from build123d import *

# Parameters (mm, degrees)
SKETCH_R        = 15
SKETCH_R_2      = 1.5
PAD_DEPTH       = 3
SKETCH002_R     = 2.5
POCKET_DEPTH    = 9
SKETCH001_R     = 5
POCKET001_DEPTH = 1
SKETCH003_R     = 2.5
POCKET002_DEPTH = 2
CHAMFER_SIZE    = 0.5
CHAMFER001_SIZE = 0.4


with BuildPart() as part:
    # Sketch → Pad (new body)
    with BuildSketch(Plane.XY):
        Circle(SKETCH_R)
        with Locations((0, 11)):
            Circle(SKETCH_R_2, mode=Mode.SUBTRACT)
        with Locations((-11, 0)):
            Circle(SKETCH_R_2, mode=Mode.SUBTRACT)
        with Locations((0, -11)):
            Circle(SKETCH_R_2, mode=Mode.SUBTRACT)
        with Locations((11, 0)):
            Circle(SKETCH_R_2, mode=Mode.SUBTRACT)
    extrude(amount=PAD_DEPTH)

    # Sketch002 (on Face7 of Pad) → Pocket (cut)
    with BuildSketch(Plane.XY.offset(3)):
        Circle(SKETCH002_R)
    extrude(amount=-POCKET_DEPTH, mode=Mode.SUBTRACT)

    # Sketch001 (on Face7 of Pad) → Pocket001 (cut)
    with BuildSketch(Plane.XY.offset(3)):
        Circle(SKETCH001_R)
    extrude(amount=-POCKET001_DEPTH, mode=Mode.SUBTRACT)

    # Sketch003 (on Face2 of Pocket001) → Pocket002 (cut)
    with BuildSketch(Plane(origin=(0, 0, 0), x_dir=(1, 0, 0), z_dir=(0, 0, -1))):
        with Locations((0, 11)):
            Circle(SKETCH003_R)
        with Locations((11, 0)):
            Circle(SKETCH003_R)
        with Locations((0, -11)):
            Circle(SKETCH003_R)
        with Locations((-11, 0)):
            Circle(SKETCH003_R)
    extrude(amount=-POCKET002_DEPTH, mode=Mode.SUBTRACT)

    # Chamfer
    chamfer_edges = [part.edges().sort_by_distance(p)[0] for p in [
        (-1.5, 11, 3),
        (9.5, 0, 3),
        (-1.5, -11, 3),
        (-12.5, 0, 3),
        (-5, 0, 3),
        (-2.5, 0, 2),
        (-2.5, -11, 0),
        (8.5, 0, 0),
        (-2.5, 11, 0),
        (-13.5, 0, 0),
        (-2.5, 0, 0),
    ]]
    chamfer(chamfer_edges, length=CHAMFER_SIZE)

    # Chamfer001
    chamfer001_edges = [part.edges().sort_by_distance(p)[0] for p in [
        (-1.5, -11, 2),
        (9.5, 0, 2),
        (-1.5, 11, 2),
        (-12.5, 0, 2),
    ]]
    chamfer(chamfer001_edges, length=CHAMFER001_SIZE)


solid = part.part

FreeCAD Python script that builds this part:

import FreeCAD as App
import Part
import Sketcher
from FreeCAD import Vector
Q = App.Units.Quantity


def edges_at(feature, points):
    """Names of the edges that pass closest to the given points."""
    edges = feature.Shape.Edges
    near = lambda p: min(range(len(edges)), key=lambda i: edges[i].distToShape(Part.Vertex(*p))[0])
    return sorted({f"Edge{near(p) + 1}" for p in points})

doc = App.newDocument("Part")
params = doc.addObject("Spreadsheet::Sheet", "Params")
for row, (alias, value) in enumerate([
    ("sketch1_diameter", "30 mm"),
    ("sketch1_diameter2", "3 mm"),
    ("pad1_length", "3 mm"),
    ("sketch2_diameter", "5 mm"),
    ("pocket1_length", "9 mm"),
    ("sketch3_diameter", "10 mm"),
    ("pocket2_length", "1 mm"),
    ("sketch4_diameter", "5 mm"),
    ("pocket3_length", "2 mm"),
    ("chamfer_size", "0.5 mm"),
    ("chamfer2_size", "0.4 mm"),
], start=1):
    params.set(f"A{row}", alias)
    params.set(f"B{row}", "=" + value)
    params.setAlias(f"B{row}", alias)

body = doc.addObject("PartDesign::Body", "Body")

sketch1 = doc.addObject("Sketcher::SketchObject", "Sketch")
body.addObject(sketch1)
sketch1.AttachmentSupport = (doc.XY_Plane, [""])
sketch1.MapMode = "FlatFace"
sketch1.addGeometry(Part.Circle(Vector(0, 0, 0), Vector(0, 0, 1), 15), False)
sketch1.addGeometry(Part.Circle(Vector(0, -11, 0), Vector(0, 0, 1), 1.5), False)
sketch1.addGeometry(Part.Circle(Vector(-11, 0, 0), Vector(0, 0, 1), 1.5), False)
sketch1.addGeometry(Part.Circle(Vector(11, 0, 0), Vector(0, 0, 1), 1.5), False)
sketch1.addGeometry(Part.Circle(Vector(0, 11, 0), Vector(0, 0, 1), 1.5), False)
sketch1.addConstraint(Sketcher.Constraint("Coincident", 0, 3, -1, 1))
sketch1.addConstraint(Sketcher.Constraint("Equal", 1, 2))
sketch1.addConstraint(Sketcher.Constraint("Equal", 2, 3))
sketch1.addConstraint(Sketcher.Constraint("Equal", 3, 4))
sketch1.addConstraint(Sketcher.Constraint("Symmetric", 2, 3, 3, 3, -1, 1))
sketch1.addConstraint(Sketcher.Constraint("Symmetric", 1, 3, 4, 3, -1, 1))
sketch1.addConstraint(Sketcher.Constraint("PointOnObject", 1, 3, -2))
sketch1.addConstraint(Sketcher.Constraint("PointOnObject", 2, 3, -1))
sketch1.addConstraint(Sketcher.Constraint("Diameter", 0, Q("30 mm")))
sketch1.addConstraint(Sketcher.Constraint("Diameter", 1, Q("3 mm")))
sketch1.addConstraint(Sketcher.Constraint("DistanceY", 1, 3, -1, 1, Q("11 mm")))
sketch1.addConstraint(Sketcher.Constraint("DistanceX", 2, 3, -1, 1, Q("11 mm")))
sketch1.setExpression("Constraints[8]", "Params.sketch1_diameter")
sketch1.setExpression("Constraints[9]", "Params.sketch1_diameter2")
pad1 = doc.addObject("PartDesign::Pad", "Pad")
body.addObject(pad1)
pad1.Profile = sketch1
pad1.setExpression("Length", "Params.pad1_length")

sketch2 = doc.addObject("Sketcher::SketchObject", "Sketch001")
body.addObject(sketch2)
sketch2.AttachmentSupport = (doc.XY_Plane, [""])
sketch2.MapMode = "FlatFace"
sketch2.AttachmentOffset = App.Placement(Vector(0, 0, 3), App.Rotation())
sketch2.addGeometry(Part.Circle(Vector(0, 0, 0), Vector(0, 0, 1), 2.5), False)
sketch2.addConstraint(Sketcher.Constraint("Coincident", 0, 3, -1, 1))
sketch2.addConstraint(Sketcher.Constraint("Diameter", 0, Q("5 mm")))
sketch2.setExpression("Constraints[1]", "Params.sketch2_diameter")
pocket1 = doc.addObject("PartDesign::Pocket", "Pocket")
body.addObject(pocket1)
pocket1.Profile = sketch2
pocket1.setExpression("Length", "Params.pocket1_length")

sketch3 = doc.addObject("Sketcher::SketchObject", "Sketch002")
body.addObject(sketch3)
sketch3.AttachmentSupport = (doc.XY_Plane, [""])
sketch3.MapMode = "FlatFace"
sketch3.AttachmentOffset = App.Placement(Vector(0, 0, 3), App.Rotation())
sketch3.addGeometry(Part.Circle(Vector(0, 0, 0), Vector(0, 0, 1), 5), False)
sketch3.addConstraint(Sketcher.Constraint("Coincident", 0, 3, -1, 1))
sketch3.addConstraint(Sketcher.Constraint("Diameter", 0, Q("10 mm")))
sketch3.setExpression("Constraints[1]", "Params.sketch3_diameter")
pocket2 = doc.addObject("PartDesign::Pocket", "Pocket001")
body.addObject(pocket2)
pocket2.Profile = sketch3
pocket2.setExpression("Length", "Params.pocket2_length")

sketch4 = doc.addObject("Sketcher::SketchObject", "Sketch003")
body.addObject(sketch4)
sketch4.AttachmentSupport = (doc.XY_Plane, [""])
sketch4.MapMode = "FlatFace"
sketch4.addGeometry(Part.Circle(Vector(0, -11, 0), Vector(0, 0, 1), 2.5), False)
sketch4.addGeometry(Part.Circle(Vector(11, 0, 0), Vector(0, 0, 1), 2.5), False)
sketch4.addGeometry(Part.Circle(Vector(0, 11, 0), Vector(0, 0, 1), 2.5), False)
sketch4.addGeometry(Part.Circle(Vector(-11, 0, 0), Vector(0, 0, 1), 2.5), False)
sketch4.addConstraint(Sketcher.Constraint("Equal", 0, 1))
sketch4.addConstraint(Sketcher.Constraint("Equal", 1, 2))
sketch4.addConstraint(Sketcher.Constraint("Equal", 2, 3))
sketch4.addConstraint(Sketcher.Constraint("Symmetric", 0, 3, 2, 3, -1, 1))
sketch4.addConstraint(Sketcher.Constraint("Symmetric", 1, 3, 3, 3, -1, 1))
sketch4.addConstraint(Sketcher.Constraint("PointOnObject", 0, 3, -2))
sketch4.addConstraint(Sketcher.Constraint("PointOnObject", 1, 3, -1))
sketch4.addConstraint(Sketcher.Constraint("Diameter", 0, Q("5 mm")))
sketch4.addConstraint(Sketcher.Constraint("DistanceY", 0, 3, -1, 1, Q("11 mm")))
sketch4.addConstraint(Sketcher.Constraint("DistanceX", -1, 1, 1, 3, Q("11 mm")))
sketch4.setExpression("Constraints[7]", "Params.sketch4_diameter")
pocket3 = doc.addObject("PartDesign::Pocket", "Pocket002")
body.addObject(pocket3)
pocket3.Profile = sketch4
pocket3.setExpression("Length", "Params.pocket3_length")
pocket3.Reversed = True
doc.recompute()

chamfer = doc.addObject("PartDesign::Chamfer", "Chamfer")
body.addObject(chamfer)
chamfer.Base = (pocket3, edges_at(pocket3, [
    (-1.5, 11, 3),
    (9.5, 0, 3),
    (-1.5, -11, 3),
    (-12.5, 0, 3),
    (-5, 0, 3),
    (-2.5, 0, 2),
    (-2.5, -11, 0),
    (8.5, 0, 0),
    (-2.5, 11, 0),
    (-13.5, 0, 0),
    (-2.5, 0, 0),
]))
chamfer.setExpression("Size", "Params.chamfer_size")
doc.recompute()

chamfer2 = doc.addObject("PartDesign::Chamfer", "Chamfer001")
body.addObject(chamfer2)
chamfer2.Base = (chamfer, edges_at(chamfer, [
    (-1.5, -11, 2),
    (9.5, 0, 2),
    (-1.5, 11, 2),
    (-12.5, 0, 2),
]))
chamfer2.setExpression("Size", "Params.chamfer2_size")

doc.recompute()
